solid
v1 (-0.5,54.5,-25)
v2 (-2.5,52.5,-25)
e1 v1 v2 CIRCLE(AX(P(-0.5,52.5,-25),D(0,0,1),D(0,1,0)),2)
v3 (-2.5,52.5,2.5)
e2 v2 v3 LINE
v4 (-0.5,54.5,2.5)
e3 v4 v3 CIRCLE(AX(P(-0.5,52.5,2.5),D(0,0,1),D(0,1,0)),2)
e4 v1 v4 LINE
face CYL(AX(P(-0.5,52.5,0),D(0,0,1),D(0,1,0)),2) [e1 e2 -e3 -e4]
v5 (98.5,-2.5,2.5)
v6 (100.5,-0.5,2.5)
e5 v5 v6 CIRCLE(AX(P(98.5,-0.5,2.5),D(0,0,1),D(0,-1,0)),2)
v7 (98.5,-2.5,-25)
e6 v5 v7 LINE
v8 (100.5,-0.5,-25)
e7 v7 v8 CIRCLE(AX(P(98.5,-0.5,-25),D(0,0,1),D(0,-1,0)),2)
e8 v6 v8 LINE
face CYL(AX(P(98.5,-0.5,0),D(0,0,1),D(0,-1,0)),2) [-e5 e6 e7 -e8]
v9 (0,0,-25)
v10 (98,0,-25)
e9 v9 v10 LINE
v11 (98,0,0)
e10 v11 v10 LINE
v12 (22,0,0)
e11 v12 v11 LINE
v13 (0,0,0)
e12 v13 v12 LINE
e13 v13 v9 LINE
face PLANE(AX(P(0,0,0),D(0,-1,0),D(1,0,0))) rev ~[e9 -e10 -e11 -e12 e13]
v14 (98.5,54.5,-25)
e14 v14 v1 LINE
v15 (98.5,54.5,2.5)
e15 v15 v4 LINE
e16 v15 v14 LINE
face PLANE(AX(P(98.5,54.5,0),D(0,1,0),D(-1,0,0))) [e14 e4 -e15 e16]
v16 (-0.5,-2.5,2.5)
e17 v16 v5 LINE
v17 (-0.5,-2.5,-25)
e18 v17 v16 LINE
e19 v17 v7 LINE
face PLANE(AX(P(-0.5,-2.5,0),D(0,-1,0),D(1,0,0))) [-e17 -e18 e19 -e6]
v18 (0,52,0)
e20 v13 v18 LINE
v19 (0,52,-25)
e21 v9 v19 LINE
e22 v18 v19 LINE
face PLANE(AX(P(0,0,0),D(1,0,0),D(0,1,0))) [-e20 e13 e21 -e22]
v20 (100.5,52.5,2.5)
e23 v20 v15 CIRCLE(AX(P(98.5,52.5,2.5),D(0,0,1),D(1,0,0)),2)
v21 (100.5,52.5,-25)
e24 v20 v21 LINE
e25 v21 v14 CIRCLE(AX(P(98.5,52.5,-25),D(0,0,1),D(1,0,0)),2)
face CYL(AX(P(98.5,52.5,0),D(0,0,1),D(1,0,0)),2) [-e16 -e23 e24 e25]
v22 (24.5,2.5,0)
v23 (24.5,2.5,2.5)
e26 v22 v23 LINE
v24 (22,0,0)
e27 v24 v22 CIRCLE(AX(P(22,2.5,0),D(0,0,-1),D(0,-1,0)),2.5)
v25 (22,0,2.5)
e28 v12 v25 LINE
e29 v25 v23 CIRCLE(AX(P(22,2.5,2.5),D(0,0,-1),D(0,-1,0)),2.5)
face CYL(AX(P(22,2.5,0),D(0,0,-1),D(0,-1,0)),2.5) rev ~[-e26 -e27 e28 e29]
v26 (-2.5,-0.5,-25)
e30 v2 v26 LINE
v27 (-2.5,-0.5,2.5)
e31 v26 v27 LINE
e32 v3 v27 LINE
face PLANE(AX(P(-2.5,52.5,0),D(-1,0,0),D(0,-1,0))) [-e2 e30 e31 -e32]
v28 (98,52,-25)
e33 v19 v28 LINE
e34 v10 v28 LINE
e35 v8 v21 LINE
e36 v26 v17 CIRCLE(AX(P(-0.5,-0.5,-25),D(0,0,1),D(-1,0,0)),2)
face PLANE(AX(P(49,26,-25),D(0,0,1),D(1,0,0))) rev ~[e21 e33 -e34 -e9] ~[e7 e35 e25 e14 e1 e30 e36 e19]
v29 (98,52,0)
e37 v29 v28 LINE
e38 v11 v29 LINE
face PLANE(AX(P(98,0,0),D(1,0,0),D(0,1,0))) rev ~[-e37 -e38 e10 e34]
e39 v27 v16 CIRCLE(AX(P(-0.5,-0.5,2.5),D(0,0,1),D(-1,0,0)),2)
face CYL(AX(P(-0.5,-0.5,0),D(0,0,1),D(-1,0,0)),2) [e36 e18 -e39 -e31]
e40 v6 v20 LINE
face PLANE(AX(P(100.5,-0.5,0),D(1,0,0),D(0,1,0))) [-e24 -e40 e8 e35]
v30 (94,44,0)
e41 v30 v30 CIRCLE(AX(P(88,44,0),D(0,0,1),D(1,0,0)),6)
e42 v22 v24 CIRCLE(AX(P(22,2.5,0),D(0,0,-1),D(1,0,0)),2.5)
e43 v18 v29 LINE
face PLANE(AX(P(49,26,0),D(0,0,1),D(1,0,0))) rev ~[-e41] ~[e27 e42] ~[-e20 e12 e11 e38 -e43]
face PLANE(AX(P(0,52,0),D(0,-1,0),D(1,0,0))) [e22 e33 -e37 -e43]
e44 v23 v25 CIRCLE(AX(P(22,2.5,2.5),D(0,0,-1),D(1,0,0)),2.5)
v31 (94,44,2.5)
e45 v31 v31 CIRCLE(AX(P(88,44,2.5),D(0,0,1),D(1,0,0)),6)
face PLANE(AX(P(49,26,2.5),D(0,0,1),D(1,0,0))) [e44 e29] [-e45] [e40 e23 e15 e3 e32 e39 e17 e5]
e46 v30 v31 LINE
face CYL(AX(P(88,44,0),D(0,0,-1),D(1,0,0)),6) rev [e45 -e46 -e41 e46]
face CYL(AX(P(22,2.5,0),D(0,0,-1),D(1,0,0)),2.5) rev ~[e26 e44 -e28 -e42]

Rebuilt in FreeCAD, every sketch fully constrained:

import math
import FreeCAD as App
import Part
import Sketcher

V = App.Vector


def add_polygon(sketch, points):
    """Adds a closed chain of lines whose ends are joined by coincident constraints."""
    first, n = sketch.GeometryCount, len(points)
    for a, b in zip(points, points[1:] + points[:1]):
        sketch.addGeometry(Part.LineSegment(App.Vector(*a, 0), App.Vector(*b, 0)), False)
    for i in range(n):
        sketch.addConstraint(Sketcher.Constraint("Coincident", first + i, 2, first + (i + 1) % n, 1))

doc = App.newDocument("Part")
body = doc.addObject("PartDesign::Body", "Body")

sketch1 = body.newObject("Sketcher::SketchObject", "Sketch")
sketch1.AttachmentSupport = (doc.getObject("XY_Plane"), [""])
sketch1.MapMode = "FlatFace"
sketch1.addGeometry(Part.LineSegment(V(98.5, 54.5, 0), V(-0.5, 54.5, 0)), False)
sketch1.addGeometry(Part.ArcOfCircle(Part.Circle(V(-0.5, 52.5, 0), V(0, 0, 1), 2), math.radians(90), math.radians(180)), False)
sketch1.addGeometry(Part.LineSegment(V(-2.5, 52.5, 0), V(-2.5, -0.5, 0)), False)
sketch1.addGeometry(Part.ArcOfCircle(Part.Circle(V(-0.5, -0.5, 0), V(0, 0, 1), 2), math.radians(180), math.radians(270)), False)
sketch1.addGeometry(Part.LineSegment(V(-0.5, -2.5, 0), V(98.5, -2.5, 0)), False)
sketch1.addGeometry(Part.ArcOfCircle(Part.Circle(V(98.5, -0.5, 0), V(0, 0, 1), 2), math.radians(-90), math.radians(0)), False)
sketch1.addGeometry(Part.LineSegment(V(100.5, -0.5, 0), V(100.5, 52.5, 0)), False)
sketch1.addGeometry(Part.ArcOfCircle(Part.Circle(V(98.5, 52.5, 0), V(0, 0, 1), 2), math.radians(0), math.radians(90)), False)
sketch1.addGeometry(Part.ArcOfCircle(Part.Circle(V(22, 2.5, 0), V(0, 0, 1), 2.5), math.radians(0), math.radians(270)), False)
sketch1.addGeometry(Part.ArcOfCircle(Part.Circle(V(22, 2.5, 0), V(0, 0, 1), 2.5), math.radians(-90), math.radians(0)), False)
sketch1.addGeometry(Part.Circle(V(88, 44, 0), V(0, 0, 1), 6), False)
sketch1.addConstraint(Sketcher.Constraint("Tangent", 0, 2, 1, 1))
sketch1.addConstraint(Sketcher.Constraint("Tangent", 1, 2, 2, 1))
sketch1.addConstraint(Sketcher.Constraint("Tangent", 2, 2, 3, 1))
sketch1.addConstraint(Sketcher.Constraint("Tangent", 3, 2, 4, 1))
sketch1.addConstraint(Sketcher.Constraint("Tangent", 4, 2, 5, 1))
sketch1.addConstraint(Sketcher.Constraint("Tangent", 5, 2, 6, 1))
sketch1.addConstraint(Sketcher.Constraint("Tangent", 6, 2, 7, 1))
sketch1.addConstraint(Sketcher.Constraint("Tangent", 7, 2, 0, 1))
sketch1.addConstraint(Sketcher.Constraint("Tangent", 8, 1, 9, 2))
sketch1.addConstraint(Sketcher.Constraint("Coincident", 9, 1, 8, 2))
sketch1.addConstraint(Sketcher.Constraint("Horizontal", 0))
sketch1.addConstraint(Sketcher.Constraint("Vertical", 2))
sketch1.addConstraint(Sketcher.Constraint("Horizontal", 4))
sketch1.addConstraint(Sketcher.Constraint("Vertical", 6))
sketch1.addConstraint(Sketcher.Constraint("Equal", 1, 3))
sketch1.addConstraint(Sketcher.Constraint("Equal", 3, 5))
sketch1.addConstraint(Sketcher.Constraint("Equal", 5, 7))
sketch1.addConstraint(Sketcher.Constraint("PointOnObject", 9, 1, -1))
sketch1.addConstraint(Sketcher.Constraint("Horizontal", 9, 3, 8, 1))
sketch1.addConstraint(Sketcher.Constraint("Vertical", 8, 3, 9, 1))
sketch1.addConstraint(Sketcher.Constraint("Diameter", 10, 12.0))
sketch1.addConstraint(Sketcher.Constraint("Radius", 1, 2.0))
sketch1.addConstraint(Sketcher.Constraint("Radius", 8, 2.5))
sketch1.addConstraint(Sketcher.Constraint("DistanceX", 0, 2, 0, 1, 99.0))
sketch1.addConstraint(Sketcher.Constraint("DistanceY", 2, 2, 2, 1, 53.0))
sketch1.addConstraint(Sketcher.Constraint("DistanceX", -1, 1, 8, 3, 22.0))
sketch1.addConstraint(Sketcher.Constraint("DistanceX", -1, 1, 10, 3, 88.0))
sketch1.addConstraint(Sketcher.Constraint("DistanceY", -1, 1, 10, 3, 44.0))
sketch1.addConstraint(Sketcher.Constraint("DistanceY", 3, 3, 8, 3, 3.0))
sketch1.addConstraint(Sketcher.Constraint("DistanceX", 3, 3, 8, 1, 25.0))
pad1 = body.newObject("PartDesign::Pad", "Pad")
pad1.Profile = sketch1
pad1.Length = 2.5

sketch2 = body.newObject("Sketcher::SketchObject", "Sketch001")
sketch2.AttachmentSupport = (doc.getObject("XY_Plane"), [""])
sketch2.MapMode = "FlatFace"
sketch2.addGeometry(Part.LineSegment(V(98.5, 54.5, 0), V(-0.5, 54.5, 0)), False)
sketch2.addGeometry(Part.ArcOfCircle(Part.Circle(V(-0.5, 52.5, 0), V(0, 0, 1), 2), math.radians(90), math.radians(180)), False)
sketch2.addGeometry(Part.LineSegment(V(-2.5, 52.5, 0), V(-2.5, -0.5, 0)), False)
sketch2.addGeometry(Part.ArcOfCircle(Part.Circle(V(-0.5, -0.5, 0), V(0, 0, 1), 2), math.radians(180), math.radians(270)), False)
sketch2.addGeometry(Part.LineSegment(V(-0.5, -2.5, 0), V(98.5, -2.5, 0)), False)
sketch2.addGeometry(Part.ArcOfCircle(Part.Circle(V(98.5, -0.5, 0), V(0, 0, 1), 2), math.radians(-90), math.radians(0)), False)
sketch2.addGeometry(Part.LineSegment(V(100.5, -0.5, 0), V(100.5, 52.5, 0)), False)
sketch2.addGeometry(Part.ArcOfCircle(Part.Circle(V(98.5, 52.5, 0), V(0, 0, 1), 2), math.radians(0), math.radians(90)), False)
add_polygon(sketch2, [(98, 0), (0, 0), (0, 52), (98, 52)])
sketch2.addConstraint(Sketcher.Constraint("Tangent", 0, 2, 1, 1))
sketch2.addConstraint(Sketcher.Constraint("Tangent", 1, 2, 2, 1))
sketch2.addConstraint(Sketcher.Constraint("Tangent", 2, 2, 3, 1))
sketch2.addConstraint(Sketcher.Constraint("Tangent", 3, 2, 4, 1))
sketch2.addConstraint(Sketcher.Constraint("Tangent", 4, 2, 5, 1))
sketch2.addConstraint(Sketcher.Constraint("Tangent", 5, 2, 6, 1))
sketch2.addConstraint(Sketcher.Constraint("Tangent", 6, 2, 7, 1))
sketch2.addConstraint(Sketcher.Constraint("Tangent", 7, 2, 0, 1))
sketch2.addConstraint(Sketcher.Constraint("Horizontal", 0))
sketch2.addConstraint(Sketcher.Constraint("Vertical", 2))
sketch2.addConstraint(Sketcher.Constraint("Horizontal", 4))
sketch2.addConstraint(Sketcher.Constraint("Vertical", 6))
sketch2.addConstraint(Sketcher.Constraint("Horizontal", 8))
sketch2.addConstraint(Sketcher.Constraint("Vertical", 9))
sketch2.addConstraint(Sketcher.Constraint("Horizontal", 10))
sketch2.addConstraint(Sketcher.Constraint("Vertical", 11))
sketch2.addConstraint(Sketcher.Constraint("Coincident", 8, 2, -1, 1))
sketch2.addConstraint(Sketcher.Constraint("Equal", 1, 3))
sketch2.addConstraint(Sketcher.Constraint("Equal", 3, 5))
sketch2.addConstraint(Sketcher.Constraint("Equal", 5, 7))
sketch2.addConstraint(Sketcher.Constraint("Radius", 1, 2.0))
sketch2.addConstraint(Sketcher.Constraint("DistanceX", 0, 2, 0, 1, 99.0))
sketch2.addConstraint(Sketcher.Constraint("DistanceX", 8, 2, 8, 1, 98.0))
sketch2.addConstraint(Sketcher.Constraint("DistanceY", 2, 2, 2, 1, 53.0))
sketch2.addConstraint(Sketcher.Constraint("DistanceY", 9, 1, 9, 2, 52.0))
sketch2.addConstraint(Sketcher.Constraint("DistanceX", 1, 3, -1, 1, 0.5))
sketch2.addConstraint(Sketcher.Constraint("DistanceY", -1, 1, 1, 3, 52.5))
pad2 = body.newObject("PartDesign::Pad", "Pad001")
pad2.Profile = sketch2
pad2.Length = 25
pad2.Reversed = True

doc.recompute()
